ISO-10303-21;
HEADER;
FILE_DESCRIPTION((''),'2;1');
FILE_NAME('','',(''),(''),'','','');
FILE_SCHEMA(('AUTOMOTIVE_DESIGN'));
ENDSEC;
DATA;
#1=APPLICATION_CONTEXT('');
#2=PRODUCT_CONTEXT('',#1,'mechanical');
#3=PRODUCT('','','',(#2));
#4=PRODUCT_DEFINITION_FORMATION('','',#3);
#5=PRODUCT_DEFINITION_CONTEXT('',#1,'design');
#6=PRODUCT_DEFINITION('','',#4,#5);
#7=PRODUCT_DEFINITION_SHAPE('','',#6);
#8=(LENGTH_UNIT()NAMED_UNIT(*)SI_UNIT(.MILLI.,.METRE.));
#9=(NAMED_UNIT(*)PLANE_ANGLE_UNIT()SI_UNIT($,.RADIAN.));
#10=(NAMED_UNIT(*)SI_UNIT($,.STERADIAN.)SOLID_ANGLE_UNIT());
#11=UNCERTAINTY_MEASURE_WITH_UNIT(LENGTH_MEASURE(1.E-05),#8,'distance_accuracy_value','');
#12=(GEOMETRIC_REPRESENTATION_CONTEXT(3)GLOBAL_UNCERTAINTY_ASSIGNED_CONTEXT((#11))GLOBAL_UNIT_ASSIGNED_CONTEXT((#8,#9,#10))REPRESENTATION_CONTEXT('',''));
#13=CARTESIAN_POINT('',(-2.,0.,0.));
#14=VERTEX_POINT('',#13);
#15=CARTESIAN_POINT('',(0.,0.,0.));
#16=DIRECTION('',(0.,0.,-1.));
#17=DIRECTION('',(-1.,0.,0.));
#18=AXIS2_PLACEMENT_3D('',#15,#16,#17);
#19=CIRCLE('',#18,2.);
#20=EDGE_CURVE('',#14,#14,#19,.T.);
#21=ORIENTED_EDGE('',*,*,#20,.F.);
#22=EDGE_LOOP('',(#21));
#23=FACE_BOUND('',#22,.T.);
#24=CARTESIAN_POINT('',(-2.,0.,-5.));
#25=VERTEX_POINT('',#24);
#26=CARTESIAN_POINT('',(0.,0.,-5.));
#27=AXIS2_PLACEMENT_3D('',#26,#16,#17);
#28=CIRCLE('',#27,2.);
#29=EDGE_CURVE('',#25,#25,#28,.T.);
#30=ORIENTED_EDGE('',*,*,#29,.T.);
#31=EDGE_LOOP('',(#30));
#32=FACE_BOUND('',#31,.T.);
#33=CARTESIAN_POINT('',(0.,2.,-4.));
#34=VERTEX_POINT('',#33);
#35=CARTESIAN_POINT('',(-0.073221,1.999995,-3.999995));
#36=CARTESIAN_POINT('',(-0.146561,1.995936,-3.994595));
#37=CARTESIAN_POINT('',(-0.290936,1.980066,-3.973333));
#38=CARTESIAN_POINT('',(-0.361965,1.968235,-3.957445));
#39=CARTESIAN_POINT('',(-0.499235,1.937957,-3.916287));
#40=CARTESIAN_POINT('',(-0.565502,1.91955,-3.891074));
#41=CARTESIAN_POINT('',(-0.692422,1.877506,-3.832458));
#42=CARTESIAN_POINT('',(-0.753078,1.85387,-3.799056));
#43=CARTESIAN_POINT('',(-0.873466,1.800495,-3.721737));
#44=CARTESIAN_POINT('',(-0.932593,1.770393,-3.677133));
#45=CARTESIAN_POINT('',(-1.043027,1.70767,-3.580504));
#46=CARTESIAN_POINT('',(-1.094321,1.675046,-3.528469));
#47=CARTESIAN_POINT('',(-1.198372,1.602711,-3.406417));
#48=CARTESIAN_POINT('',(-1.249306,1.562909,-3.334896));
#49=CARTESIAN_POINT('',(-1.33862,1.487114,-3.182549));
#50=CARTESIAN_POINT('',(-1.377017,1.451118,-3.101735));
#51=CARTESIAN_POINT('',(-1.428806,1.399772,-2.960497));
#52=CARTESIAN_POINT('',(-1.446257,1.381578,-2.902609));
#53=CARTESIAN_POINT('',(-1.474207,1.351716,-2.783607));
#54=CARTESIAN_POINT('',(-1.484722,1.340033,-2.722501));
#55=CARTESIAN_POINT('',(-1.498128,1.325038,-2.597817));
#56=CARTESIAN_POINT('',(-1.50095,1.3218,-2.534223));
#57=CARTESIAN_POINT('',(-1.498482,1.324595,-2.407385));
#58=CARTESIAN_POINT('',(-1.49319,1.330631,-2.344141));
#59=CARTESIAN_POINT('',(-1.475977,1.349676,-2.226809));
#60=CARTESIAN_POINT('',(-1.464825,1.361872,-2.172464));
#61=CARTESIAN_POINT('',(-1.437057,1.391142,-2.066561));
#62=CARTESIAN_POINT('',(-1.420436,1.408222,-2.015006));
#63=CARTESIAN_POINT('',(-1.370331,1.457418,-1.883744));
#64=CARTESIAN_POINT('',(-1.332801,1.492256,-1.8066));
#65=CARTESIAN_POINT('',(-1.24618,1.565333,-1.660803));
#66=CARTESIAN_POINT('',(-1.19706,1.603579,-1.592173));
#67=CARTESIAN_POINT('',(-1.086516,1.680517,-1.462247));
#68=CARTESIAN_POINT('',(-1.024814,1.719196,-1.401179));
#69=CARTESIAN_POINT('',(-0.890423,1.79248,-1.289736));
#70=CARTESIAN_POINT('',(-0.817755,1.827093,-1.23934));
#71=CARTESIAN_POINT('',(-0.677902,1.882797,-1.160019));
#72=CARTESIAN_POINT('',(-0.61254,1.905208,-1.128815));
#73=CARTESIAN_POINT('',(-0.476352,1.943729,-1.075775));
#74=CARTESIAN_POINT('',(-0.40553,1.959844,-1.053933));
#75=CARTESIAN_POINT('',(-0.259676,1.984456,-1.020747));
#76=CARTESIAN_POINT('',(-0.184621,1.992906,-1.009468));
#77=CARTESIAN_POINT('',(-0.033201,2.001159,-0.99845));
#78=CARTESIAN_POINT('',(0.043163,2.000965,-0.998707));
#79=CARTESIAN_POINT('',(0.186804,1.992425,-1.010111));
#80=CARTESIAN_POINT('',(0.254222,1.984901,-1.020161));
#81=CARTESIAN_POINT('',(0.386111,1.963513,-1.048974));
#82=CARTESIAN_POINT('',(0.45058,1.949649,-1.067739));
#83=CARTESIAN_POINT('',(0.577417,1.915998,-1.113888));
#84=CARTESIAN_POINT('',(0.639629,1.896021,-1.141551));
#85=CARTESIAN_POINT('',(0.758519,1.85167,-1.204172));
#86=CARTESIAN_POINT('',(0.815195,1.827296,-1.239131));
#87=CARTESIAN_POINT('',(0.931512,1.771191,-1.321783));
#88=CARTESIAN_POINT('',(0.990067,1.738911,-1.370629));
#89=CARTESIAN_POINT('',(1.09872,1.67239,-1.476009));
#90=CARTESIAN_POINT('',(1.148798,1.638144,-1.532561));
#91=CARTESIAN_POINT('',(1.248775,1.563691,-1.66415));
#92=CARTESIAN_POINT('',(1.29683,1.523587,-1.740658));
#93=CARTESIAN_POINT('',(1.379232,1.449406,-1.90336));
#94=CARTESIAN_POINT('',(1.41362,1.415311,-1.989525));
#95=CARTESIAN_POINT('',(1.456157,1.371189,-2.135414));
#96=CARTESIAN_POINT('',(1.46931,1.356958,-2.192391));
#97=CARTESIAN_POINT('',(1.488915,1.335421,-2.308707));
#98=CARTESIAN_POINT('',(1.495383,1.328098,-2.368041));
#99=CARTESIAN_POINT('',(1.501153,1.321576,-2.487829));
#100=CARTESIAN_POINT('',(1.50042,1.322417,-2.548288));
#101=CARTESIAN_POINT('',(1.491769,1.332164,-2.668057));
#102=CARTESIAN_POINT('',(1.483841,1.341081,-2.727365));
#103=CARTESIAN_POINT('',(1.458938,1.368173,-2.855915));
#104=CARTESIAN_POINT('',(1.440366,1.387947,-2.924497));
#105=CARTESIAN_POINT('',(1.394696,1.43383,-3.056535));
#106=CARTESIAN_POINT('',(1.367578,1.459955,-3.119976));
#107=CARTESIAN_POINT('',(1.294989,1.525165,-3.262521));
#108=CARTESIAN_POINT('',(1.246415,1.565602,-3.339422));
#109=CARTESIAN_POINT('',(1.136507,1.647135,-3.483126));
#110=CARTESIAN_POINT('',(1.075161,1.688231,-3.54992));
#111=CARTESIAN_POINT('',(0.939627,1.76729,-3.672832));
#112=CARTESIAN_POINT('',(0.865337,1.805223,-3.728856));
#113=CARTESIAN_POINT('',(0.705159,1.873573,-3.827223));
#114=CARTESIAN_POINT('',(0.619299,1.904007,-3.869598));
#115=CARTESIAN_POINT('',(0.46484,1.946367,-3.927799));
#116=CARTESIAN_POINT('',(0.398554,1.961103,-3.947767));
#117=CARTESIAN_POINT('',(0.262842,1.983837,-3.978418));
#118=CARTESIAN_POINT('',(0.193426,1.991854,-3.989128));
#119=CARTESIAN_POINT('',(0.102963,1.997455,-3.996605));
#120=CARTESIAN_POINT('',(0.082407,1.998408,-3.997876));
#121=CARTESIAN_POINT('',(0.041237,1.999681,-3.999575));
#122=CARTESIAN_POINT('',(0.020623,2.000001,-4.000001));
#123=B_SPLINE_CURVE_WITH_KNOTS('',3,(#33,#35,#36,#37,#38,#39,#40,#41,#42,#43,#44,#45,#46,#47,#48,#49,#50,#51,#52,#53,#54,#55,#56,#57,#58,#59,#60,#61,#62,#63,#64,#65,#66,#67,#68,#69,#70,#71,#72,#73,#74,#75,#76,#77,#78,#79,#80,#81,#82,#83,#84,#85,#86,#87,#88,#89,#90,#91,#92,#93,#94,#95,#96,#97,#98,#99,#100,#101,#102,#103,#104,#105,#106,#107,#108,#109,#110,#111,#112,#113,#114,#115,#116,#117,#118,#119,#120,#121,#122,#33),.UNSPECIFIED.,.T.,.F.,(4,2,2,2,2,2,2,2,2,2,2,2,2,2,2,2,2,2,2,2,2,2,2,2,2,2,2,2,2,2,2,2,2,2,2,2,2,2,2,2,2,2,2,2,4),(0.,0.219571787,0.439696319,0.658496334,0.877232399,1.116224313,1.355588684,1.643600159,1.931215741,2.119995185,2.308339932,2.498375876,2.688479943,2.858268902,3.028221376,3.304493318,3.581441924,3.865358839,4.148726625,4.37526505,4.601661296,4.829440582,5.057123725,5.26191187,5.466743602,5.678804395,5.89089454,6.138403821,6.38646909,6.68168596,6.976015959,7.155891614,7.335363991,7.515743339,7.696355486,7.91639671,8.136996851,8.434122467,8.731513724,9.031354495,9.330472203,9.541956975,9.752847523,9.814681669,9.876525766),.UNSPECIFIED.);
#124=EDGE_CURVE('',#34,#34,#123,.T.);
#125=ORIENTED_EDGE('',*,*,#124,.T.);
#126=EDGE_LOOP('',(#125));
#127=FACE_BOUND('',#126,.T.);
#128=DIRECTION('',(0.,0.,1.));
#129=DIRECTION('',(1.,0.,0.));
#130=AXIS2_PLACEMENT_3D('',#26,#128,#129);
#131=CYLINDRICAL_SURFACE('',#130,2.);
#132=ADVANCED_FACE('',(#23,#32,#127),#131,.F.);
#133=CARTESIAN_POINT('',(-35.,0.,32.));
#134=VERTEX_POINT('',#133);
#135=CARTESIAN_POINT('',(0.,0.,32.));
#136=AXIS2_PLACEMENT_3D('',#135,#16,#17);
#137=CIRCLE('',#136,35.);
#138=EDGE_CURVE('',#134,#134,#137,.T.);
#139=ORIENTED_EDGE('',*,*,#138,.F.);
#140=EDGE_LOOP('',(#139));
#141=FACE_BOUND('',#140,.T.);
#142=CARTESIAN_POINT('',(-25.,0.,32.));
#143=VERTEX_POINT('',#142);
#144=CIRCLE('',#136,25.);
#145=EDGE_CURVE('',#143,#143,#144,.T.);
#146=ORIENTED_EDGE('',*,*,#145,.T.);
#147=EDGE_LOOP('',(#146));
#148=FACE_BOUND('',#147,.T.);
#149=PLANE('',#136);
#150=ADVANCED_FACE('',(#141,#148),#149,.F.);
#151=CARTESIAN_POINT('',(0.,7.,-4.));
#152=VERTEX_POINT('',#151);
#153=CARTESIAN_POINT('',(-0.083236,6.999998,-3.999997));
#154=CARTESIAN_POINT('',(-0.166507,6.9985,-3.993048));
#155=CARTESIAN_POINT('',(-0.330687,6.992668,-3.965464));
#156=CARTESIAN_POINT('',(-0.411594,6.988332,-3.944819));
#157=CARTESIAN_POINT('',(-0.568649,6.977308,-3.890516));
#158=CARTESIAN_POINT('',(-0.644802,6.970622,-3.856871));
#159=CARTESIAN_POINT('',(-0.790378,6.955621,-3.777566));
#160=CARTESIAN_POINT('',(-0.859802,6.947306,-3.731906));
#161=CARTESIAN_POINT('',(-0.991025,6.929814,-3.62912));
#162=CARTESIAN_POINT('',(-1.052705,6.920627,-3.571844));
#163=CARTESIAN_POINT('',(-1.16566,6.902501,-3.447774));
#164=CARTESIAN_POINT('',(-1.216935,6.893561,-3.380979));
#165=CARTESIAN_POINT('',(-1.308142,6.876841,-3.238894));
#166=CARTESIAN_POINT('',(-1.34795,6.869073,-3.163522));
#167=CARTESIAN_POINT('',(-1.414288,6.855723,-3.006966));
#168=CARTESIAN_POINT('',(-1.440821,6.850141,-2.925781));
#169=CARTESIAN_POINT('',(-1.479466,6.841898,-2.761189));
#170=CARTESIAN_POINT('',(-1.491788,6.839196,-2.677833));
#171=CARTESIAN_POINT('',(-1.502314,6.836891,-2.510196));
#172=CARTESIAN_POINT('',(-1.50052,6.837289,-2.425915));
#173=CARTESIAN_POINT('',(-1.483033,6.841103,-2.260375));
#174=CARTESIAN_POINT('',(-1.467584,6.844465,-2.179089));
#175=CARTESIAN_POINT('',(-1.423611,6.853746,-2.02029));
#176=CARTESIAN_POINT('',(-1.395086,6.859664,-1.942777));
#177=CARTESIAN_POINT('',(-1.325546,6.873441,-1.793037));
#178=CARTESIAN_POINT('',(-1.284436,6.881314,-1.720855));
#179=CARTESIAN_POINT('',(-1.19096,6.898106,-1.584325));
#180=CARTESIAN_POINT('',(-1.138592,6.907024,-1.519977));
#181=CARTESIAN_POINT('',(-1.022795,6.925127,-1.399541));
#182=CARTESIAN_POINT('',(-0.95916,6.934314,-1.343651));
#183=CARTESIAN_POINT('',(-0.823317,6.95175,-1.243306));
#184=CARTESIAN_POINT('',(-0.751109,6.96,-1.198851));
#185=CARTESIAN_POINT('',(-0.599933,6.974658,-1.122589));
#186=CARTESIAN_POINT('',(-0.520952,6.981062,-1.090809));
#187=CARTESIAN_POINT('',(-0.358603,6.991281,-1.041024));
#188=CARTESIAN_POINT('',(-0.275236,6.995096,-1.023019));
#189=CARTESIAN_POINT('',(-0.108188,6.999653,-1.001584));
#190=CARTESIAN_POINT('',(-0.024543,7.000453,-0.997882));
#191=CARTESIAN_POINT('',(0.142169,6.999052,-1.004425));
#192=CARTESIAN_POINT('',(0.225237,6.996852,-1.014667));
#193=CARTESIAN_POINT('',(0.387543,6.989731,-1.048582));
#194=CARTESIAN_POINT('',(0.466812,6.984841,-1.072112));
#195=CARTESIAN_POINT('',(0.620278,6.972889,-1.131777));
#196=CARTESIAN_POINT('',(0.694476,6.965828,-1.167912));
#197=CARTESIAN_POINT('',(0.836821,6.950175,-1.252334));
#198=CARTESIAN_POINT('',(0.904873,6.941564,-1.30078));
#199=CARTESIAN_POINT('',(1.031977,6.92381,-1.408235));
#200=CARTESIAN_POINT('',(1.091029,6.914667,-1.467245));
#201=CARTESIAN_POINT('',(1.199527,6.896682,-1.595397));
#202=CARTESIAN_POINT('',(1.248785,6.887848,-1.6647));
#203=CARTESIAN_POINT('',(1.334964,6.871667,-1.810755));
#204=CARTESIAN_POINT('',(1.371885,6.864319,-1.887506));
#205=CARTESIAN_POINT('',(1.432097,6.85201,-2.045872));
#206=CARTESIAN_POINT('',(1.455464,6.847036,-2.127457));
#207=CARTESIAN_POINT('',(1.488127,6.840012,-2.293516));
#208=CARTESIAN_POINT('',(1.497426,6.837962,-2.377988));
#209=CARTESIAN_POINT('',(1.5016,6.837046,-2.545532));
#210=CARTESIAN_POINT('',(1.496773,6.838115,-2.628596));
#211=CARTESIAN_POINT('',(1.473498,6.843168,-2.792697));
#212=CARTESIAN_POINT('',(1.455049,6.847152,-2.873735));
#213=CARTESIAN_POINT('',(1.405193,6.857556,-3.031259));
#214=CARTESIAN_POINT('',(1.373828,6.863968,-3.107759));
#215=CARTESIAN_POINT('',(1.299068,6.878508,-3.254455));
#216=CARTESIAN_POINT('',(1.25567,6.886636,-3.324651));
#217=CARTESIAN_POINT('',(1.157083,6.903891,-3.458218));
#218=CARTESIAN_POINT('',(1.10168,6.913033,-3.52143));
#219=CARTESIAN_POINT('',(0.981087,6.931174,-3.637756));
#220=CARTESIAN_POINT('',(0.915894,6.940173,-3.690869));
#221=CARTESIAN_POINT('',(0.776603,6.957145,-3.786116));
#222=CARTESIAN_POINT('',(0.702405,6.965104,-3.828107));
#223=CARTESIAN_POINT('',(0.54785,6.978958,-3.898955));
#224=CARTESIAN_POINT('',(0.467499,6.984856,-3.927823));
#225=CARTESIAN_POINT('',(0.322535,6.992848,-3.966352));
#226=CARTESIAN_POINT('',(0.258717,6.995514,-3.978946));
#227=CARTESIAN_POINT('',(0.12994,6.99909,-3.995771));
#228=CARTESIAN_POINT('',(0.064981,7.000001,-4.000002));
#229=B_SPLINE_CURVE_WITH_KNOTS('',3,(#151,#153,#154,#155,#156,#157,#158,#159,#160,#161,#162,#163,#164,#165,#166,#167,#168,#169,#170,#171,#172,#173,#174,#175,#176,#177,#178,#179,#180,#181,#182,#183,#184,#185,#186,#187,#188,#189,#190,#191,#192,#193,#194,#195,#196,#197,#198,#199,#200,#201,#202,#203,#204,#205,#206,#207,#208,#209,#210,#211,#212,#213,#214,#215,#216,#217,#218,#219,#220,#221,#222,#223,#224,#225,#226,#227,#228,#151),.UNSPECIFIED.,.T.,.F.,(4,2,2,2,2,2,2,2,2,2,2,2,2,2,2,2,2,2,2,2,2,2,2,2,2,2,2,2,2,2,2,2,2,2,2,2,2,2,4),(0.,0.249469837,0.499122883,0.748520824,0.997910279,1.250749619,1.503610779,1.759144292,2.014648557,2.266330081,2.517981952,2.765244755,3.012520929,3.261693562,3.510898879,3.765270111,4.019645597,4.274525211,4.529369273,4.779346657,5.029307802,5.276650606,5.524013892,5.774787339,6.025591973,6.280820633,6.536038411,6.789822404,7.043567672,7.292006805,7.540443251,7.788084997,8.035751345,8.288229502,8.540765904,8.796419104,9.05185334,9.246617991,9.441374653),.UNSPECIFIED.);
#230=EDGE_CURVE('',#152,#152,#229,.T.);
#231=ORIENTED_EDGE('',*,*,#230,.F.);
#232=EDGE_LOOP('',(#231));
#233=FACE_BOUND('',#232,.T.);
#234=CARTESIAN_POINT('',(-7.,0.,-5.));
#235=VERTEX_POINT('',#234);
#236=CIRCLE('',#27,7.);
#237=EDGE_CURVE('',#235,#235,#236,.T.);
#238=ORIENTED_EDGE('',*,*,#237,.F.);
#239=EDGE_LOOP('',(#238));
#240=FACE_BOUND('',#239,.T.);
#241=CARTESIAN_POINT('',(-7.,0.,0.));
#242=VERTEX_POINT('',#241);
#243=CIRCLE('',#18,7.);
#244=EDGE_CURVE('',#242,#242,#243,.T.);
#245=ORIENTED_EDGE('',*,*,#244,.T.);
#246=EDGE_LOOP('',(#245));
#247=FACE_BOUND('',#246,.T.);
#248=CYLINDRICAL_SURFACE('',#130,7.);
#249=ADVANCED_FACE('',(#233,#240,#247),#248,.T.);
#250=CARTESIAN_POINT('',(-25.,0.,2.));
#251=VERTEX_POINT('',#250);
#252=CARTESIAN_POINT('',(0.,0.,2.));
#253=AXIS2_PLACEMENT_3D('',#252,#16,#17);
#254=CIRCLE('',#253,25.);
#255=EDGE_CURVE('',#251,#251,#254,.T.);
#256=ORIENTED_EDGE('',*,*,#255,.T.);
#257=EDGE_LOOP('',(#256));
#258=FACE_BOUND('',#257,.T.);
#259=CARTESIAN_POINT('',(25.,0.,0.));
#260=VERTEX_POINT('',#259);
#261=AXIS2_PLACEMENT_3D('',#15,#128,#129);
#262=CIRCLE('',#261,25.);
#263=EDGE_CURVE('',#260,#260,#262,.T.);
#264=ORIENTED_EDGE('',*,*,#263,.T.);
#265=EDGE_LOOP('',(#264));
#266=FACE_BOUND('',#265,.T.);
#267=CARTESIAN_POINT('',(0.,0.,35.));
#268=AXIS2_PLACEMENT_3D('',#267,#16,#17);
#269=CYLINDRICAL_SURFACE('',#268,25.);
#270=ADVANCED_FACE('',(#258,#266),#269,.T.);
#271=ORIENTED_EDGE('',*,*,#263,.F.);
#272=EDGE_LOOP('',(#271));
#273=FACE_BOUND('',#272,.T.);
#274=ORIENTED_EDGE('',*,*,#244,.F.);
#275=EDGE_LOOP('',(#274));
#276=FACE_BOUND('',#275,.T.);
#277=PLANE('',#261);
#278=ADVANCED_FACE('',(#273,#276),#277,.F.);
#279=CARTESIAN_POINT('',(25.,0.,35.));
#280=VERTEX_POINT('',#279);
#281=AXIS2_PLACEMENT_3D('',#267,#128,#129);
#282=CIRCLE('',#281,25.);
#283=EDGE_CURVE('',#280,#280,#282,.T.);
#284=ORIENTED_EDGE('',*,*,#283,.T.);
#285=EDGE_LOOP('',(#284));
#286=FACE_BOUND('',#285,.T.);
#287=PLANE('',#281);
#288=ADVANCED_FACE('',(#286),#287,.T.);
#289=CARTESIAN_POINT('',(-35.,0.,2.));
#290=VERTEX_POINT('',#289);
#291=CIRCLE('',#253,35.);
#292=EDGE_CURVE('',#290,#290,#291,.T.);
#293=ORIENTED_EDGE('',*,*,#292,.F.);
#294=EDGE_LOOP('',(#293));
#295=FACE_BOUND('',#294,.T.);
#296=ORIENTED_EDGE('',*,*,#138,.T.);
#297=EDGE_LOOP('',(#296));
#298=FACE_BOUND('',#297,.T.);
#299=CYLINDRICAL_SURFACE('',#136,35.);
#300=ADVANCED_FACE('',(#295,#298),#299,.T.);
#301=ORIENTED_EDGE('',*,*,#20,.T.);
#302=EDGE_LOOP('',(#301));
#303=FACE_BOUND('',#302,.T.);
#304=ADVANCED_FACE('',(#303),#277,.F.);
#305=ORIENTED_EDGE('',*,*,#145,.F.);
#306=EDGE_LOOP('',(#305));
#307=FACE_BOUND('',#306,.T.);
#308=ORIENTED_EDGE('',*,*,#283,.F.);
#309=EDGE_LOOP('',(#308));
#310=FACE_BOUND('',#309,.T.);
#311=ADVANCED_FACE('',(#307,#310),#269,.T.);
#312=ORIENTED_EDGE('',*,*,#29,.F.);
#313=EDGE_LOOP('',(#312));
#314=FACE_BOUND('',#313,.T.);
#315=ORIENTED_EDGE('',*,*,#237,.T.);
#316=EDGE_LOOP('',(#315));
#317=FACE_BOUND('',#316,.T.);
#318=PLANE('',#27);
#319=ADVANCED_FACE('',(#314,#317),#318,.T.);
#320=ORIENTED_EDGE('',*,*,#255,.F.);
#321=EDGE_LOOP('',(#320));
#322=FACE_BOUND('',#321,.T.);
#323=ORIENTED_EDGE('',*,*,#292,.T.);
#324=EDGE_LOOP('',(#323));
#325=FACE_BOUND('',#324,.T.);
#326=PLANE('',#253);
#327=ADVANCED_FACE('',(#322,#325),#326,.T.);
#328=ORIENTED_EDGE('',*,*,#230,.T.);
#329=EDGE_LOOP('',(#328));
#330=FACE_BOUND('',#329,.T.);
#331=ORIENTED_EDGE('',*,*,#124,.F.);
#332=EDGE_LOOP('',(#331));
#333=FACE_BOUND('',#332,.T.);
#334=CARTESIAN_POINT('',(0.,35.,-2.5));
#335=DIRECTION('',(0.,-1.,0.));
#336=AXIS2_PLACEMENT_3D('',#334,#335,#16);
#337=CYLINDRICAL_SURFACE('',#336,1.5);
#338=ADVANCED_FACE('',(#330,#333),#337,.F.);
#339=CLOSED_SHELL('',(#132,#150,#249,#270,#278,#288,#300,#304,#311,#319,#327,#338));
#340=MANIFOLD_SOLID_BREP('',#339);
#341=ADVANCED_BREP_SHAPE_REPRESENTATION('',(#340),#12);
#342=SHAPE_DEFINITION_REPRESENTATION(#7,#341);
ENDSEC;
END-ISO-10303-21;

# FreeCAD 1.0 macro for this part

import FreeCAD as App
import Part
import Sketcher
from FreeCAD import Vector
Q = App.Units.Quantity

doc = App.newDocument("Part")
body = doc.addObject("PartDesign::Body", "Body")

sketch1 = body.newObject("Sketcher::SketchObject", "Sketch")
sketch1.AttachmentSupport = (doc.getObject("XY_Plane"), [""])
sketch1.MapMode = "FlatFace"
sketch1.addGeometry(Part.Circle(Vector(0, 0, 0), Vector(0, 0, 1), 25), False)
sketch1.addConstraint([
    Sketcher.Constraint("Coincident", 0, 3, -1, 1),
    Sketcher.Constraint("Diameter", 0, Q("50 mm")),
])
pad1 = body.newObject("PartDesign::Pad", "Pad")
pad1.Profile = sketch1
pad1.Length = 35

sketch2 = body.newObject("Sketcher::SketchObject", "Sketch001")
sketch2.AttachmentSupport = (doc.getObject("XY_Plane"), [""])
sketch2.MapMode = "FlatFace"
sketch2.AttachmentOffset = App.Placement(Vector(0, 0, 2), App.Rotation())
sketch2.addGeometry([
    Part.Circle(Vector(0, 0, 0), Vector(0, 0, 1), 35),
    Part.Circle(Vector(0, 0, 0), Vector(0, 0, 1), 25),
], False)
sketch2.addConstraint([
    Sketcher.Constraint("Coincident", 0, 3, -1, 1),
    Sketcher.Constraint("Coincident", 1, 3, -1, 1),
    Sketcher.Constraint("Diameter", 0, Q("70 mm")),
    Sketcher.Constraint("Diameter", 1, Q("50 mm")),
])
pad2 = body.newObject("PartDesign::Pad", "Pad001")
pad2.Profile = sketch2
pad2.Length = 30

sketch3 = body.newObject("Sketcher::SketchObject", "Sketch002")
sketch3.AttachmentSupport = (doc.getObject("XY_Plane"), [""])
sketch3.MapMode = "FlatFace"
sketch3.addGeometry([
    Part.Circle(Vector(0, 0, 0), Vector(0, 0, 1), 7),
    Part.Circle(Vector(0, 0, 0), Vector(0, 0, 1), 2),
], False)
sketch3.addConstraint([
    Sketcher.Constraint("Coincident", 0, 3, -1, 1),
    Sketcher.Constraint("Coincident", 1, 3, -1, 1),
    Sketcher.Constraint("Diameter", 0, Q("14 mm")),
    Sketcher.Constraint("Diameter", 1, Q("4 mm")),
])
pad3 = body.newObject("PartDesign::Pad", "Pad002")
pad3.Profile = sketch3
pad3.Length = 5
pad3.Reversed = True

sketch4 = body.newObject("Sketcher::SketchObject", "Sketch003")
sketch4.AttachmentSupport = (doc.getObject("XZ_Plane"), [""])
sketch4.MapMode = "FlatFace"
sketch4.addGeometry(Part.Circle(Vector(0, -2.5, 0), Vector(0, 0, 1), 1.5), False)
sketch4.addConstraint([
    Sketcher.Constraint("PointOnObject", 0, 3, -2),
    Sketcher.Constraint("Diameter", 0, Q("3 mm")),
    Sketcher.Constraint("DistanceY", 0, 3, -1, 1, Q("2.5 mm")),
])
pocket1 = body.newObject("PartDesign::Pocket", "Pocket")
pocket1.Profile = sketch4
pocket1.Type = "ThroughAll"

doc.recompute()
